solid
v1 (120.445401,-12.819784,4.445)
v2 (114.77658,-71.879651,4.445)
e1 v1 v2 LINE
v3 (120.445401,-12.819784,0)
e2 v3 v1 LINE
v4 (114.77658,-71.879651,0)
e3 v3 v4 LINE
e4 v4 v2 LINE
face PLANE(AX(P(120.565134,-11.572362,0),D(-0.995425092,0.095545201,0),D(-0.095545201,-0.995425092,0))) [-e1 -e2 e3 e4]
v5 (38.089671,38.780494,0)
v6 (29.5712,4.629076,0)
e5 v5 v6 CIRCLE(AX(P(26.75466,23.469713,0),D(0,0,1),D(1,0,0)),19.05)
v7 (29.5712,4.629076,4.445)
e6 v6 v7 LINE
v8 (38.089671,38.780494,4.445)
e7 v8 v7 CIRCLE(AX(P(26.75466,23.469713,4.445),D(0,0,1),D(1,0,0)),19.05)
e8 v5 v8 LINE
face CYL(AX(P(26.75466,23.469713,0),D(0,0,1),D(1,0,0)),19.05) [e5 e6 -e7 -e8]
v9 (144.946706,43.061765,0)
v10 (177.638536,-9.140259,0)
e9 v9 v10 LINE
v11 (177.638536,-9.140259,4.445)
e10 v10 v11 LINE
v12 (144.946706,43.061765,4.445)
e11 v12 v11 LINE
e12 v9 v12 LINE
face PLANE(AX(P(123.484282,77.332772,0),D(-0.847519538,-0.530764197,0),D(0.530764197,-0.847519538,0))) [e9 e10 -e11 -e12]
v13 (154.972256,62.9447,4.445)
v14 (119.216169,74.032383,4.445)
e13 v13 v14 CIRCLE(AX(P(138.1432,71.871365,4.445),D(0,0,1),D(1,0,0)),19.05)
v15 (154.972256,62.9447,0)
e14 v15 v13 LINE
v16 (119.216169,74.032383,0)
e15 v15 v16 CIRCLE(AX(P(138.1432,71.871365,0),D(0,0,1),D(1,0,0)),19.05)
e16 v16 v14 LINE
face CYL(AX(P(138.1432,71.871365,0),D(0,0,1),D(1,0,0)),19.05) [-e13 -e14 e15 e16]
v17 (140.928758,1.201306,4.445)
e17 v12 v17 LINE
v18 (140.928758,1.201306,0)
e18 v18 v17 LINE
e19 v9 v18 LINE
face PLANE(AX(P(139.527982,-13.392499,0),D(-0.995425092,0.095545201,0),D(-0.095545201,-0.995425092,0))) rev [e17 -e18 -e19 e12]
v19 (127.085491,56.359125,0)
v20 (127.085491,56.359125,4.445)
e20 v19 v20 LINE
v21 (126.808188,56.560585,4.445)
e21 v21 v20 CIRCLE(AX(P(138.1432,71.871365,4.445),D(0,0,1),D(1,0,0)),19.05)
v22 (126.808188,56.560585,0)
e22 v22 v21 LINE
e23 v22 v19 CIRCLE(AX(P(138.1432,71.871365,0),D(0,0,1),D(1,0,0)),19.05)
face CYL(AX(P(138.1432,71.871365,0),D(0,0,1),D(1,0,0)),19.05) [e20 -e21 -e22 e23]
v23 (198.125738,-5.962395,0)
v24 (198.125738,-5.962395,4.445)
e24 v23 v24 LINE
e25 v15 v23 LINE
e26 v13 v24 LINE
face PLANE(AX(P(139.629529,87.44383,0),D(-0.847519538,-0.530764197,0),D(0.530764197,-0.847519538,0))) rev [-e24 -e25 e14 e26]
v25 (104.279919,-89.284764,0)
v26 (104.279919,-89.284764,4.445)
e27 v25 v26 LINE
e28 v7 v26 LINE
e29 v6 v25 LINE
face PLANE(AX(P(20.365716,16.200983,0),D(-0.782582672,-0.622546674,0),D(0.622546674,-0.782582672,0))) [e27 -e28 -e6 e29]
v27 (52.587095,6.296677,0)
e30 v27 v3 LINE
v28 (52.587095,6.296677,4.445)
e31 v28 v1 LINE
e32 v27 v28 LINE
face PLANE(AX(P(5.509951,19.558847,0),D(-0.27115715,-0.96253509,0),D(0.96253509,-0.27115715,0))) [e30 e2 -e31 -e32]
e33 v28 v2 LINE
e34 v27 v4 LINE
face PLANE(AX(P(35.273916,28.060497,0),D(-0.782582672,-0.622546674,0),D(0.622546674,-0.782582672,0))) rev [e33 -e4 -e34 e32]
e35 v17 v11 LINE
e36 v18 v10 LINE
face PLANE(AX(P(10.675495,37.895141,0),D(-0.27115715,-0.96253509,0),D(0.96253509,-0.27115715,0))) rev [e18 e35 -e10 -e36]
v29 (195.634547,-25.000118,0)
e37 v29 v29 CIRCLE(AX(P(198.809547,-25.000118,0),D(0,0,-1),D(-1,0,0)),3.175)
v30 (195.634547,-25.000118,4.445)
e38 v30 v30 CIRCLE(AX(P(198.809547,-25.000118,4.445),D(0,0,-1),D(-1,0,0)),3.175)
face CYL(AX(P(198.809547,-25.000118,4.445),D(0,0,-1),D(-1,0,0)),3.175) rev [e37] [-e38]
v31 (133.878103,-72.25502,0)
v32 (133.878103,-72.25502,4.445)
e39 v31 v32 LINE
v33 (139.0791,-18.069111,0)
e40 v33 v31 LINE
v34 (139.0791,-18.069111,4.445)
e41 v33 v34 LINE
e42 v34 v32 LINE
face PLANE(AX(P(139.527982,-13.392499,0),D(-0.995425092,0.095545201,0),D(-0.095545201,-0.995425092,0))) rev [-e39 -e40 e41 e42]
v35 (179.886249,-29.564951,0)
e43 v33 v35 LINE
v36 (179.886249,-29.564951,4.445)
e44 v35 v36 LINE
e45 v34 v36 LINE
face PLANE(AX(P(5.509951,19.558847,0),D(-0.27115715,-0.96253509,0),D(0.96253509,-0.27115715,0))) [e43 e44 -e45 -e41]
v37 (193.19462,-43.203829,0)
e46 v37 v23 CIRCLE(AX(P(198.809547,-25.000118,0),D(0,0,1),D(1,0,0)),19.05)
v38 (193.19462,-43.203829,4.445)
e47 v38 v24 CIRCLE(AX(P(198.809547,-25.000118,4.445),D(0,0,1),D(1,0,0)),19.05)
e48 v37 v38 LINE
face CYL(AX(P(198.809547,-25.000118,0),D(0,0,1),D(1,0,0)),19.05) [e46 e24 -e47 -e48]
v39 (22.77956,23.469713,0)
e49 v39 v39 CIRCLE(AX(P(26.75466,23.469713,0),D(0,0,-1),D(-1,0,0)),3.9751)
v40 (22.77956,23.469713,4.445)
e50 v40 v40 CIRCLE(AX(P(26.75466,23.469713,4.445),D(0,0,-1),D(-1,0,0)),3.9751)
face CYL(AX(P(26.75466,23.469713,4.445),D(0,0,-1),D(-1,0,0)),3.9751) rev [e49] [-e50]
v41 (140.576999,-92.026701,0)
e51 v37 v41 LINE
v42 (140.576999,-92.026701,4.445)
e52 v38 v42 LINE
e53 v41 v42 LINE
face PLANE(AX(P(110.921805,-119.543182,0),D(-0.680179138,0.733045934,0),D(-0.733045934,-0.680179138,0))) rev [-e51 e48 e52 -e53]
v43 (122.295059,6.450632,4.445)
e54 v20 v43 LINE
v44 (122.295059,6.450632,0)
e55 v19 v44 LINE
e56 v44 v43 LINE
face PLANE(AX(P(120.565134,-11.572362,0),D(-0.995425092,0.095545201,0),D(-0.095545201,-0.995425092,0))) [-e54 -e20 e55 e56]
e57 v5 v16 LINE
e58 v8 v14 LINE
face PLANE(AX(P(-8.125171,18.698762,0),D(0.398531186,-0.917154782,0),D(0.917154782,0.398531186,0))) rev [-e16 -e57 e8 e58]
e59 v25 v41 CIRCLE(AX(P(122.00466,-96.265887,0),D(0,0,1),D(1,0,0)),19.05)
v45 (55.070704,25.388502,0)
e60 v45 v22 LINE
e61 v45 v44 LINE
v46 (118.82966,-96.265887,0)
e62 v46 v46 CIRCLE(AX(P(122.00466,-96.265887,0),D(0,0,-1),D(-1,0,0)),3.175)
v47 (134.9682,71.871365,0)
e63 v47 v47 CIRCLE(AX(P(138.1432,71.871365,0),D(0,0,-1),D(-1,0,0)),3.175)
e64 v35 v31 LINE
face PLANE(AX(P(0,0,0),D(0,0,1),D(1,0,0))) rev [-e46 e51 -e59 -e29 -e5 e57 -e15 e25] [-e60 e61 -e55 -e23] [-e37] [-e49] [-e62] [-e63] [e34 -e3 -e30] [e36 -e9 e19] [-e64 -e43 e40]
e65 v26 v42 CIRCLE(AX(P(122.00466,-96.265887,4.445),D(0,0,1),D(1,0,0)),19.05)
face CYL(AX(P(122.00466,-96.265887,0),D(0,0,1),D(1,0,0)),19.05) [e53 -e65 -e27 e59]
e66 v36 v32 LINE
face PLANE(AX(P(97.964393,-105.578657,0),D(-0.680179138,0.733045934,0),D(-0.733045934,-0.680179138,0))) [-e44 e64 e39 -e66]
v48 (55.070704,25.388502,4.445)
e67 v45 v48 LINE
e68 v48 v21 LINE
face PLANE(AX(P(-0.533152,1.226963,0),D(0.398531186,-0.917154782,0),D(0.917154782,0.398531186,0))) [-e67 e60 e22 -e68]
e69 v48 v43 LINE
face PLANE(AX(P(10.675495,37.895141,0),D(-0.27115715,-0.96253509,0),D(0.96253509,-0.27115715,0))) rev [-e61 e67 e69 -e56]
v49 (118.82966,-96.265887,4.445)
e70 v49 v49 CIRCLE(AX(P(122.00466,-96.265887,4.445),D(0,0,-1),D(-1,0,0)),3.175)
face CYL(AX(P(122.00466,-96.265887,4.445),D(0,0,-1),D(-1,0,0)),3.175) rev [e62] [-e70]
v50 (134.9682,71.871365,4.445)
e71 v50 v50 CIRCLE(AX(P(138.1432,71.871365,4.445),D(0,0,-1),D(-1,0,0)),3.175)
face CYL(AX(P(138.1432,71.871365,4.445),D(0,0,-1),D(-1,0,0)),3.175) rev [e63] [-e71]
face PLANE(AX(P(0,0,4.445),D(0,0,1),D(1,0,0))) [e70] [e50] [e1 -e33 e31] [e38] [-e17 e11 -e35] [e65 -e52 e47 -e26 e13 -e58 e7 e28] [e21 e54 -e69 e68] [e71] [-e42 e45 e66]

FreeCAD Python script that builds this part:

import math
import FreeCAD as App
import Part
import Sketcher
Q = App.Units.Quantity


def add_polygon(sketch, points):
    """Adds a closed chain of lines whose ends are joined by coincident constraints."""
    first, n = sketch.GeometryCount, len(points)
    for a, b in zip(points, points[1:] + points[:1]):
        sketch.addGeometry(Part.LineSegment(App.Vector(*a, 0), App.Vector(*b, 0)), False)
    for i in range(n):
        sketch.addConstraint(Sketcher.Constraint("Coincident", first + i, 2, first + (i + 1) % n, 1))

doc = App.newDocument("Part")
params = doc.addObject("Spreadsheet::Sheet", "Params")
for row, (alias, value) in enumerate([
    ("sketch1_width", "18 in"),
    ("pad1_length", "0.175 in"),
    ("sketch2_diameter", "0.25 in"),
    ("sketch2_diameter2", "0.313 in"),
    ("sketch3_diameter", "0.25 in"),
    ("sketch3_width", "18 in"),
    ("sketch3_radius", "0.75 in"),
    ("pocket2_length", "324.319777 mm"),
], start=1):
    params.set(f"A{row}", alias)
    params.set(f"B{row}", "=" + value)
    params.setAlias(f"B{row}", alias)

body = doc.addObject("PartDesign::Body", "Body")

# Sketch on XY plane
sketch1 = body.newObject("Sketcher::SketchObject", "Sketch")
sketch1.AttachmentSupport = (doc.getObject("XY_Plane"), [""])
sketch1.MapMode = "FlatFace"
add_polygon(sketch1, [(-228.6, 228.6), (-228.6, -228.6), (228.6, -228.6), (228.6, 228.6)])  # lines 0-3
sketch1.addConstraint([
    Sketcher.Constraint("Vertical", 0),
    Sketcher.Constraint("Horizontal", 1),
    Sketcher.Constraint("Vertical", 2),
    Sketcher.Constraint("Horizontal", 3),
    Sketcher.Constraint("Symmetric", 0, 2, 2, 2, -1, 1),
    Sketcher.Constraint("Equal", 3, 0),
    Sketcher.Constraint("DistanceX", 1, 1, 1, 2, Q("18 in")),
])
sketch1.setExpression("Constraints[10]", "Params.sketch1_width")
pad1 = body.newObject("PartDesign::Pad", "Pad")
pad1.Profile = sketch1
pad1.setExpression("Length", "Params.pad1_length")

# Sketch on XY plane
sketch2 = body.newObject("Sketcher::SketchObject", "Sketch001")
sketch2.AttachmentSupport = (doc.getObject("XY_Plane"), [""])
sketch2.MapMode = "FlatFace"
sketch2.addGeometry([
    Part.Circle(App.Vector(138.1432, 71.871365, 0), App.Vector(0, 0, 1), 3.175),  # 0
    Part.Circle(App.Vector(198.809547, -25.000118, 0), App.Vector(0, 0, 1), 3.175),  # 1
    Part.Circle(App.Vector(122.00466, -96.265887, 0), App.Vector(0, 0, 1), 3.175),  # 2
    Part.Circle(App.Vector(26.75466, -96.265887, 0), App.Vector(0, 0, 1), 3.175),  # 3
    Part.Circle(App.Vector(26.75466, 23.469713, 0), App.Vector(0, 0, 1), 3.9751),  # 4
], False)
sketch2.addConstraint([
    Sketcher.Constraint("Equal", 0, 1),
    Sketcher.Constraint("Equal", 1, 2),
    Sketcher.Constraint("Equal", 2, 3),
    Sketcher.Constraint("Horizontal", 2, 3, 3, 3),
    Sketcher.Constraint("Vertical", 3, 3, 4, 3),
    Sketcher.Constraint("Diameter", 0, Q("0.25 in")),
    Sketcher.Constraint("Diameter", 4, Q("0.313 in")),
    Sketcher.Constraint("DistanceX", 3, 3, 2, 3, Q("3.75 in")),
    Sketcher.Constraint("DistanceY", 3, 3, 4, 3, Q("4.714 in")),
    Sketcher.Constraint("DistanceX", -1, 1, 0, 3, 138.1432),
    Sketcher.Constraint("DistanceY", 1, 3, -1, 1, 25.000118),
    Sketcher.Constraint("DistanceX", -1, 1, 2, 3, 122.00466),
    Sketcher.Constraint("DistanceY", 2, 3, 1, 3, 71.265769),
    Sketcher.Constraint("DistanceY", -1, 1, 0, 3, 71.871365),
    Sketcher.Constraint("DistanceX", -1, 1, 1, 3, 198.809547),
])
sketch2.setExpression("Constraints[5]", "Params.sketch2_diameter")
sketch2.setExpression("Constraints[6]", "Params.sketch2_diameter2")
pocket1 = body.newObject("PartDesign::Pocket", "Pocket")
pocket1.Profile = sketch2
pocket1.Type = "ThroughAll"
pocket1.Reversed = True

# Sketch on XY plane
sketch3 = body.newObject("Sketcher::SketchObject", "Sketch002")
sketch3.AttachmentSupport = (doc.getObject("XY_Plane"), [""])
sketch3.MapMode = "FlatFace"
sketch3.AttachmentOffset = App.Placement(App.Vector(0, 0, 0.175 * 25.4), App.Rotation())
add_polygon(sketch3, [(-228.6, 228.6), (-228.6, -228.6), (228.6, -228.6), (228.6, 228.6)])  # lines 0-3
sketch3.addGeometry(Part.Circle(App.Vector(26.75466, -96.265887, 0), App.Vector(0, 0, 1), 3.175), False)  # 4
sketch3.addGeometry(Part.ArcOfCircle(Part.Circle(App.Vector(122.00466, -96.265887, 0), App.Vector(0, 0, 1), 19.05), math.radians(158.502346), math.radians(360)), False)  # 5
sketch3.addGeometry(Part.LineSegment(App.Vector(104.279919, -89.284764, 0), App.Vector(29.5712, 4.629076, 0)), False)  # 6
sketch3.addGeometry(Part.ArcOfCircle(Part.Circle(App.Vector(26.75466, 23.469713, 0), App.Vector(0, 0, 1), 19.05), math.radians(53.486388), math.radians(278.502346)), False)  # 7
sketch3.addGeometry(Part.LineSegment(App.Vector(38.089671, 38.780494, 0), App.Vector(119.216169, 74.032383, 0)), False)  # 8
sketch3.addGeometry(Part.ArcOfCircle(Part.Circle(App.Vector(138.1432, 71.871365, 0), App.Vector(0, 0, 1), 19.05), math.radians(0), math.radians(173.486388)), False)  # 9
sketch3.addGeometry(Part.ArcOfCircle(Part.Circle(App.Vector(138.1432, 71.871365, 0), App.Vector(0, 0, 1), 19.05), math.radians(-27.942897), math.radians(0)), False)  # 10
sketch3.addGeometry(Part.LineSegment(App.Vector(154.972256, 62.9447, 0), App.Vector(198.125738, -5.962395, 0)), False)  # 11
sketch3.addGeometry(Part.ArcOfCircle(Part.Circle(App.Vector(198.809547, -25.000118, 0), App.Vector(0, 0, 1), 19.05), math.radians(0), math.radians(92.057103)), False)  # 12
sketch3.addGeometry(Part.ArcOfCircle(Part.Circle(App.Vector(198.809547, -25.000118, 0), App.Vector(0, 0, 1), 19.05), math.radians(-107.142357), math.radians(0)), False)  # 13
sketch3.addGeometry(Part.LineSegment(App.Vector(193.19462, -43.203829, 0), App.Vector(140.576999, -92.026701, 0)), False)  # 14
sketch3.addGeometry(Part.ArcOfCircle(Part.Circle(App.Vector(122.00466, -96.265887, 0), App.Vector(0, 0, 1), 19.05), math.radians(0), math.radians(12.857643)), False)  # 15
sketch3.addGeometry(Part.ArcOfCircle(Part.Circle(App.Vector(138.143194, 71.871357, 0), App.Vector(0, 0, 1), 19.04999), math.radians(-126.513612), math.radians(-125.4827)), False)  # 16
sketch3.addGeometry(Part.LineSegment(App.Vector(126.808188, 56.560584, 0), App.Vector(55.070704, 25.388502, 0)), False)  # 17
sketch3.addGeometry(Part.LineSegment(App.Vector(55.070704, 25.388502, 0), App.Vector(122.295059, 6.450632, 0)), False)  # 18
sketch3.addGeometry(Part.LineSegment(App.Vector(122.295059, 6.450632, 0), App.Vector(127.085491, 56.359125, 0)), False)  # 19
add_polygon(sketch3, [(144.946706, 43.061765), (140.928758, 1.201306), (177.638536, -9.140259)])  # lines 20-22
add_polygon(sketch3, [(179.886249, -29.564951), (139.0791, -18.069111), (133.878103, -72.25502)])  # lines 23-25
add_polygon(sketch3, [(120.445401, -12.819784), (52.587095, 6.296677), (114.77658, -71.879651)])  # lines 26-28
sketch3.addConstraint([
    Sketcher.Constraint("Coincident", 5, 1, 6, 1),
    Sketcher.Constraint("Coincident", 6, 2, 7, 2),
    Sketcher.Constraint("Coincident", 7, 1, 8, 1),
    Sketcher.Constraint("Coincident", 8, 2, 9, 2),
    Sketcher.Constraint("Tangent", 9, 1, 10, 2),
    Sketcher.Constraint("Coincident", 10, 1, 11, 1),
    Sketcher.Constraint("Coincident", 11, 2, 12, 2),
    Sketcher.Constraint("Tangent", 12, 1, 13, 2),
    Sketcher.Constraint("Coincident", 13, 1, 14, 1),
    Sketcher.Constraint("Coincident", 14, 2, 15, 2),
    Sketcher.Constraint("Tangent", 15, 1, 5, 2),
    Sketcher.Constraint("Coincident", 16, 1, 17, 1),
    Sketcher.Constraint("Coincident", 17, 2, 18, 1),
    Sketcher.Constraint("Coincident", 18, 2, 19, 1),
    Sketcher.Constraint("Coincident", 19, 2, 16, 2),
    Sketcher.Constraint("Vertical", 0),
    Sketcher.Constraint("Horizontal", 1),
    Sketcher.Constraint("Vertical", 2),
    Sketcher.Constraint("Horizontal", 3),
    Sketcher.Constraint("Equal", 5, 7),
    Sketcher.Constraint("Equal", 7, 9),
    Sketcher.Constraint("Equal", 9, 10),
    Sketcher.Constraint("Equal", 10, 12),
    Sketcher.Constraint("Equal", 12, 13),
    Sketcher.Constraint("Equal", 13, 15),
    Sketcher.Constraint("Symmetric", 0, 2, 2, 2, -1, 1),
    Sketcher.Constraint("Parallel", 8, 17),
    Sketcher.Constraint("Parallel", 19, 20),
    Sketcher.Constraint("Parallel", 18, 21),
    Sketcher.Constraint("Parallel", 11, 22),
    Sketcher.Constraint("Parallel", 21, 23),
    Sketcher.Constraint("Parallel", 20, 24),
    Sketcher.Constraint("Parallel", 14, 25),
    Sketcher.Constraint("Parallel", 23, 26),
    Sketcher.Constraint("Parallel", 6, 27),
    Sketcher.Constraint("Parallel", 24, 28),
    Sketcher.Constraint("Horizontal", 4, 3, 5, 3),
    Sketcher.Constraint("Horizontal", 10, 3, 9, 1),
    Sketcher.Constraint("Horizontal", 13, 3, 12, 1),
    Sketcher.Constraint("Horizontal", 5, 3, 15, 1),
    Sketcher.Constraint("Vertical", 4, 3, 7, 3),
    Sketcher.Constraint("Equal", 3, 0),
    Sketcher.Constraint("Diameter", 4, Q("0.25 in")),
    Sketcher.Constraint("DistanceX", 1, 1, 1, 2, Q("18 in")),
    Sketcher.Constraint("Radius", 5, Q("0.75 in")),
    Sketcher.Constraint("DistanceX", 4, 3, 5, 3, Q("3.75 in")),
    Sketcher.Constraint("Radius", 16, 19.04999),
    Sketcher.Constraint("DistanceY", 4, 3, 7, 3, Q("4.714 in")),
    Sketcher.Constraint("DistanceX", -1, 1, 9, 3, 138.1432),
    Sketcher.Constraint("DistanceX", -1, 1, 6, 2, 29.5712),
    Sketcher.Constraint("DistanceY", -1, 1, 10, 1, 62.9447),
    Sketcher.Constraint("DistanceX", -1, 1, 14, 2, 140.576999),
    Sketcher.Constraint("DistanceY", 14, 2, -1, 1, 92.026701),
    Sketcher.Constraint("DistanceX", -1, 1, 23, 2, 139.0791),
    Sketcher.Constraint("DistanceX", -1, 1, 28, 2, 120.445401),
    Sketcher.Constraint("DistanceY", 16, 1, 8, 2, 17.471799),
    Sketcher.Constraint("DistanceX", 18, 2, 20, 2, 18.6337),
    Sketcher.Constraint("DistanceY", 11, 2, 20, 2, 7.163701),
    Sketcher.Constraint("DistanceX", 20, 2, 10, 1, 14.043498),
    Sketcher.Constraint("DistanceX", 21, 2, 11, 2, 20.487202),
    Sketcher.Constraint("DistanceY", 22, 2, 10, 3, 28.809601),
    Sketcher.Constraint("DistanceX", 25, 2, 13, 3, 18.923298),
    Sketcher.Constraint("DistanceY", 6, 2, 26, 2, 1.667601),
    Sketcher.Constraint("Distance", 6, 120.005009),
    Sketcher.Constraint("Distance", 18, 69.840939),
    Sketcher.Constraint("Distance", 19, 50.137869),
    Sketcher.Constraint("Distance", 21, 38.138639),
    Sketcher.Constraint("Distance", 25, 62.762979),
    Sketcher.Constraint("DistanceX", -1, 1, 4, 3, 26.75466),
    Sketcher.Constraint("DistanceY", 12, 3, -1, 1, 25.000118),
    Sketcher.Constraint("DistanceX", -1, 1, 7, 1, 38.089671),
    Sketcher.Constraint("DistanceX", -1, 1, 8, 2, 119.216169),
    Sketcher.Constraint("DistanceX", -1, 1, 13, 1, 193.19462),
    Sketcher.Constraint("DistanceY", 13, 1, -1, 1, 43.203829),
    Sketcher.Constraint("DistanceX", -1, 1, 18, 2, 122.295059),
    Sketcher.Constraint("DistanceY", 23, 2, -1, 1, 18.069111),
    Sketcher.Constraint("DistanceX", -1, 1, 27, 2, 114.77658),
    Sketcher.Constraint("DistanceY", 6, 2, 16, 3, 67.242281),
])
sketch3.setExpression("Constraints[55]", "Params.sketch3_diameter")
sketch3.setExpression("Constraints[56]", "Params.sketch3_width")
sketch3.setExpression("Constraints[57]", "Params.sketch3_radius")
pocket2 = body.newObject("PartDesign::Pocket", "Pocket001")
pocket2.Profile = sketch3
pocket2.setExpression("Length", "Params.pocket2_length")

doc.recompute()
